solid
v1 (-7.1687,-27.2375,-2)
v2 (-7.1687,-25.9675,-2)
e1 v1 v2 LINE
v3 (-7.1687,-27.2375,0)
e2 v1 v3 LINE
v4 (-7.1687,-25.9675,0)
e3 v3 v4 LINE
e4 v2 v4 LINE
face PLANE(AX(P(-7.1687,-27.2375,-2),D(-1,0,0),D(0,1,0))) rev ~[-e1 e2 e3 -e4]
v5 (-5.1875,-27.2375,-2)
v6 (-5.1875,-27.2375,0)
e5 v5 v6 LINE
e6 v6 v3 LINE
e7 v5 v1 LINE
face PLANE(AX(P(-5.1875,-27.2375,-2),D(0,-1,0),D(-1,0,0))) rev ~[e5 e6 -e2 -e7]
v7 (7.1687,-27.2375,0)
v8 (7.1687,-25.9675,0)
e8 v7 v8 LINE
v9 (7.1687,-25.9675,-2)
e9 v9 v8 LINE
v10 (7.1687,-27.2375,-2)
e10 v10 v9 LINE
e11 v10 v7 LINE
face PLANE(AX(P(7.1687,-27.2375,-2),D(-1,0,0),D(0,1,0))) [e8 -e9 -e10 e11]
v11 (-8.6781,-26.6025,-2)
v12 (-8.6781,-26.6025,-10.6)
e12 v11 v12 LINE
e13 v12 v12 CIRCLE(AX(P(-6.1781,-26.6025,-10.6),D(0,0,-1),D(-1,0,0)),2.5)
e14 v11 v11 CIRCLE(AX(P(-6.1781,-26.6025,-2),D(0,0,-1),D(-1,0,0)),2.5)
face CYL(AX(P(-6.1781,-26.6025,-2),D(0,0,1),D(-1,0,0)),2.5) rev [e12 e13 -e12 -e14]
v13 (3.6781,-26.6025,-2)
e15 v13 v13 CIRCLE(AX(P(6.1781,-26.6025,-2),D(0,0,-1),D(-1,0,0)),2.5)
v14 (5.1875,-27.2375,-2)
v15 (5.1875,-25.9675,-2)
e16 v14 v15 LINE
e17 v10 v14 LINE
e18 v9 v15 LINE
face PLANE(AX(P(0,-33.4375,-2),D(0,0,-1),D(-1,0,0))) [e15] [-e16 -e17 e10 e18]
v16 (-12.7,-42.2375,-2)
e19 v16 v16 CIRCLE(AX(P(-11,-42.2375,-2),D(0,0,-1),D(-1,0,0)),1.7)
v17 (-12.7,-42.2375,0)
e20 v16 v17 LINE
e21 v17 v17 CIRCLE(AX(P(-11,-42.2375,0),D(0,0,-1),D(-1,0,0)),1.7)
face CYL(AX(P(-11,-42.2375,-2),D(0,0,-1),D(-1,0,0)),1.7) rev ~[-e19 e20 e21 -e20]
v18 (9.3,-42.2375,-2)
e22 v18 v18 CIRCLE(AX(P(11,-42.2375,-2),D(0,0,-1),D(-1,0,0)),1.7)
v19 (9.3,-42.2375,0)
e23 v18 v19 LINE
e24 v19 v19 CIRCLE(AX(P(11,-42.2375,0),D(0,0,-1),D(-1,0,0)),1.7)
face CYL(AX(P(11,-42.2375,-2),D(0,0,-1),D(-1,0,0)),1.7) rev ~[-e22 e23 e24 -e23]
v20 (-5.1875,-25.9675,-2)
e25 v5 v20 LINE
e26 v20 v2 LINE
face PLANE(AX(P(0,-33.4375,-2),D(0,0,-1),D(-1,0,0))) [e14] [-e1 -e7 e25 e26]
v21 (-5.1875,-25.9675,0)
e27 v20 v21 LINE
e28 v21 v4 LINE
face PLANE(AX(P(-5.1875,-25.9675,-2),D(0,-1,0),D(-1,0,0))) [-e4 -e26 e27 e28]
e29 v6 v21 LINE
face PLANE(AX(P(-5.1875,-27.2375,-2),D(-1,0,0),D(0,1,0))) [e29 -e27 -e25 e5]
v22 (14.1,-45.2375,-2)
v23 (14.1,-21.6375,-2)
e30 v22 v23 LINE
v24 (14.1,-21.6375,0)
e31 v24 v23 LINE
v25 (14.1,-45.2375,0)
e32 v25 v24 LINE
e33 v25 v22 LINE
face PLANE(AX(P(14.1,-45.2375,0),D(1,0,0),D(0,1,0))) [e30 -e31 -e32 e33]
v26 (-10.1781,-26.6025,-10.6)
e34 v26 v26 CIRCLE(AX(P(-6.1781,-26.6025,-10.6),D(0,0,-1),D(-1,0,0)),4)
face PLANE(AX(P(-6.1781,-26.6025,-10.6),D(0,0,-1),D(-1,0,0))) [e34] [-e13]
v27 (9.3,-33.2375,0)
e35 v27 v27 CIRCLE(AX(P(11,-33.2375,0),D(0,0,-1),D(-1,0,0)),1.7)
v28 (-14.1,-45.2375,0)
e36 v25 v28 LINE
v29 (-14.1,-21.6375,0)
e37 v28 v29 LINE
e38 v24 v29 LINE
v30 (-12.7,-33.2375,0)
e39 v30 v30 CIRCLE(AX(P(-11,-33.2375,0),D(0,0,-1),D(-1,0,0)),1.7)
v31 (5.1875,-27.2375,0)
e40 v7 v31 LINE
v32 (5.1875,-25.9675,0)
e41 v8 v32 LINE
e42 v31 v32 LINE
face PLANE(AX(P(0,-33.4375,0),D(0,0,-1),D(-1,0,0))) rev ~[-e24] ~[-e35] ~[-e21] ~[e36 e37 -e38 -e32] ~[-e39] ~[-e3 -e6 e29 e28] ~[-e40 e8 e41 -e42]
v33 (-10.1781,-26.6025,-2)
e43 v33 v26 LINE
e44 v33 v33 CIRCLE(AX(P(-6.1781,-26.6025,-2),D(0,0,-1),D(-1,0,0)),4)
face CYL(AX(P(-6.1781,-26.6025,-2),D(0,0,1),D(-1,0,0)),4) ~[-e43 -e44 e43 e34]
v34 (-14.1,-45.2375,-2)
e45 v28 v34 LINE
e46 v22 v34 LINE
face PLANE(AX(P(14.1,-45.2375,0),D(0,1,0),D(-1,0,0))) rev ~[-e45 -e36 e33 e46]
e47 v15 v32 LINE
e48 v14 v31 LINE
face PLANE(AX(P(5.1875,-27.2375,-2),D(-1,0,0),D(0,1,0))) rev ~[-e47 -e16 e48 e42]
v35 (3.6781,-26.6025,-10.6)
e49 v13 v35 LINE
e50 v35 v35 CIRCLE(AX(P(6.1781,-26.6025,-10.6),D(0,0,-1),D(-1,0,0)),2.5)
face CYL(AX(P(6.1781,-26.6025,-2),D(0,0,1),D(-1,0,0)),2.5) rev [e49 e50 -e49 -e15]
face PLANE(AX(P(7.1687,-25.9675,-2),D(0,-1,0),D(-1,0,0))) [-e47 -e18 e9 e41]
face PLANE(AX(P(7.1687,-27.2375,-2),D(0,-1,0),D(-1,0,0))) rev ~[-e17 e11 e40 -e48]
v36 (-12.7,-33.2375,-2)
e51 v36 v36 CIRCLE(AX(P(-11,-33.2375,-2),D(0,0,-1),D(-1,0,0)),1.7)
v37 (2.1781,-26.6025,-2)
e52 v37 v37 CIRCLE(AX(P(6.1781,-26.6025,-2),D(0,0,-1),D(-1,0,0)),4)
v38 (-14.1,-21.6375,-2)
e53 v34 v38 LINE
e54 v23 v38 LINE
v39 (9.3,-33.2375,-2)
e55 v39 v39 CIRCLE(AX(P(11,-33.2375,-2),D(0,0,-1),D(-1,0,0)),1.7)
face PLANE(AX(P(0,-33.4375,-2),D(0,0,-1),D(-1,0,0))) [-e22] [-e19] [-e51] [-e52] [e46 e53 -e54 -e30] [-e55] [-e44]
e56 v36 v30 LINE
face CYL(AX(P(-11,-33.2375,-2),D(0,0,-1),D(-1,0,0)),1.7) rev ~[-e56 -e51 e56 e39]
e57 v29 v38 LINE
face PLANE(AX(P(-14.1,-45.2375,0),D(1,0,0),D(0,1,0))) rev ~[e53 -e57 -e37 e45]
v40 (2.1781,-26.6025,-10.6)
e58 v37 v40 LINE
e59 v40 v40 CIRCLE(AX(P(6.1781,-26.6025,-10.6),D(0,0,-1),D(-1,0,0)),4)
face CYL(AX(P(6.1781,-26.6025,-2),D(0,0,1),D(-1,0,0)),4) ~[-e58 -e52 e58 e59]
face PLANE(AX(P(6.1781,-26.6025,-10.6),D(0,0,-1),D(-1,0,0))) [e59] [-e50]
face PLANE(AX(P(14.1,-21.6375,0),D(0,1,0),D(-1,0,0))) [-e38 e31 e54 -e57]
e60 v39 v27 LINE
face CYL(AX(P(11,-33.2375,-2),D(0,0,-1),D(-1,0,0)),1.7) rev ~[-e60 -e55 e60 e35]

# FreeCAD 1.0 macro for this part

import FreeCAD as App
import Part
import Sketcher

V = App.Vector

doc = App.newDocument("Part")
body = doc.addObject("PartDesign::Body", "Body")

# Sketch on XY plane
sketch1 = doc.addObject("Sketcher::SketchObject", "Sketch")
body.addObject(sketch1)
sketch1.AttachmentSupport = (doc.XY_Plane, [""])
sketch1.MapMode = "FlatFace"
sketch1.addGeometry([
    Part.LineSegment(V(-14, -22, 0), V(-14, -45, 0)),
    Part.LineSegment(V(-14, -45, 0), V(14, -45, 0)),
    Part.LineSegment(V(14, -45, 0), V(14, -22, 0)),
    Part.LineSegment(V(14, -22, 0), V(-14, -22, 0)),
], False)
sketch1.addConstraint([
    Sketcher.Constraint("Coincident", 0, 2, 1, 1),
    Sketcher.Constraint("Coincident", 1, 2, 2, 1),
    Sketcher.Constraint("Coincident", 2, 2, 3, 1),
    Sketcher.Constraint("Coincident", 3, 2, 0, 1),
    Sketcher.Constraint("Vertical", 0),
    Sketcher.Constraint("Horizontal", 1),
    Sketcher.Constraint("Vertical", 2),
    Sketcher.Constraint("Horizontal", 3),
    Sketcher.Constraint("DistanceX", 1, 1, 1, 2, 28.2),
    Sketcher.Constraint("DistanceY", 0, 2, 0, 1, 23.6),
    Sketcher.Constraint("DistanceX", 0, 2, -1, 1, 14.1),
    Sketcher.Constraint("DistanceY", 0, 2, -1, 1, 45.2375),
])
pad1 = doc.addObject("PartDesign::Pad", "Pad")
body.addObject(pad1)
pad1.Profile = sketch1
pad1.Length = 2

# Sketch on XY plane
sketch2 = doc.addObject("Sketcher::SketchObject", "Sketch001")
body.addObject(sketch2)
sketch2.AttachmentSupport = (doc.XY_Plane, [""])
sketch2.MapMode = "FlatFace"
sketch2.AttachmentOffset = App.Placement(V(0, 0, 2), App.Rotation())
sketch2.addGeometry([
    Part.LineSegment(V(-7.2, -26, 0), V(-7.2, -27.2, 0)),  # 0
    Part.LineSegment(V(-7.2, -27.2, 0), V(-5.2, -27.2, 0)),  # 1
    Part.LineSegment(V(-5.2, -27.2, 0), V(-5.2, -26, 0)),  # 2
    Part.LineSegment(V(-5.2, -26, 0), V(-7.2, -26, 0)),  # 3
    Part.LineSegment(V(5.2, -26, 0), V(5.2, -27.2, 0)),  # 4
    Part.LineSegment(V(5.2, -27.2, 0), V(7.2, -27.2, 0)),  # 5
    Part.LineSegment(V(7.2, -27.2, 0), V(7.2, -26, 0)),  # 6
    Part.LineSegment(V(7.2, -26, 0), V(5.2, -26, 0)),  # 7
], False)
sketch2.addConstraint([
    Sketcher.Constraint("Coincident", 0, 2, 1, 1),
    Sketcher.Constraint("Coincident", 1, 2, 2, 1),
    Sketcher.Constraint("Coincident", 2, 2, 3, 1),
    Sketcher.Constraint("Coincident", 3, 2, 0, 1),
    Sketcher.Constraint("Coincident", 4, 2, 5, 1),
    Sketcher.Constraint("Coincident", 5, 2, 6, 1),
    Sketcher.Constraint("Coincident", 6, 2, 7, 1),
    Sketcher.Constraint("Coincident", 7, 2, 4, 1),
    Sketcher.Constraint("Vertical", 0),
    Sketcher.Constraint("Horizontal", 1),
    Sketcher.Constraint("Vertical", 2),
    Sketcher.Constraint("Horizontal", 3),
    Sketcher.Constraint("Vertical", 4),
    Sketcher.Constraint("Horizontal", 5),
    Sketcher.Constraint("Vertical", 6),
    Sketcher.Constraint("Horizontal", 7),
    Sketcher.Constraint("Symmetric", 1, 2, 4, 2, -2),
    Sketcher.Constraint("Symmetric", 3, 2, 6, 2, -2),
    Sketcher.Constraint("DistanceY", 0, 2, 0, 1, 1.27),
    Sketcher.Constraint("DistanceX", 1, 1, 1, 2, 1.9812),
    Sketcher.Constraint("DistanceX", 1, 2, 4, 2, 10.375),
    Sketcher.Constraint("DistanceY", 0, 2, -1, 1, 27.2375),
])
pocket1 = doc.addObject("PartDesign::Pocket", "Pocket")
body.addObject(pocket1)
pocket1.Profile = sketch2
pocket1.Length = 2

# Sketch on XY plane
sketch3 = doc.addObject("Sketcher::SketchObject", "Sketch002")
body.addObject(sketch3)
sketch3.AttachmentSupport = (doc.XY_Plane, [""])
sketch3.MapMode = "FlatFace"
sketch3.AttachmentOffset = App.Placement(V(0, 0, 2), App.Rotation())
sketch3.addGeometry([
    Part.Circle(V(-6.2, -26.6, 0), V(0, 0, 1), 4),
    Part.Circle(V(-6.2, -26.6, 0), V(0, 0, 1), 2.5),
    Part.Circle(V(6.2, -26.6, 0), V(0, 0, 1), 4),
    Part.Circle(V(6.2, -26.6, 0), V(0, 0, 1), 2.5),
], False)
sketch3.addConstraint([
    Sketcher.Constraint("Coincident", 1, 3, 0, 3),
    Sketcher.Constraint("Coincident", 3, 3, 2, 3),
    Sketcher.Constraint("Equal", 0, 2),
    Sketcher.Constraint("Equal", 1, 3),
    Sketcher.Constraint("Symmetric", 0, 3, 2, 3, -2),
    Sketcher.Constraint("Diameter", 0, 8.0),
    Sketcher.Constraint("Diameter", 1, 5.0),
    Sketcher.Constraint("DistanceX", 0, 3, -1, 1, 6.1781),
    Sketcher.Constraint("DistanceY", 0, 3, -1, 1, 26.6025),
])
pad2 = doc.addObject("PartDesign::Pad", "Pad001")
body.addObject(pad2)
pad2.Profile = sketch3
pad2.Length = 8.6

# Sketch on XY plane
sketch4 = doc.addObject("Sketcher::SketchObject", "Sketch003")
body.addObject(sketch4)
sketch4.AttachmentSupport = (doc.XY_Plane, [""])
sketch4.MapMode = "FlatFace"
sketch4.AttachmentOffset = App.Placement(V(0, 0, 2), App.Rotation())
sketch4.addGeometry([
    Part.Circle(V(-11, -42.2, 0), V(0, 0, 1), 1.7),
    Part.Circle(V(11, -42.2, 0), V(0, 0, 1), 1.7),
    Part.Circle(V(-11, -33.2, 0), V(0, 0, 1), 1.7),
    Part.Circle(V(11, -33.2, 0), V(0, 0, 1), 1.7),
], False)
sketch4.addConstraint([
    Sketcher.Constraint("Equal", 0, 1),
    Sketcher.Constraint("Equal", 1, 2),
    Sketcher.Constraint("Equal", 2, 3),
    Sketcher.Constraint("Symmetric", 0, 3, 1, 3, -2),
    Sketcher.Constraint("Symmetric", 2, 3, 3, 3, -2),
    Sketcher.Constraint("Vertical", 0, 3, 2, 3),
    Sketcher.Constraint("Diameter", 0, 3.4),
    Sketcher.Constraint("DistanceX", 0, 3, -1, 1, 11.0),
    Sketcher.Constraint("DistanceY", 0, 3, 2, 3, 9.0),
    Sketcher.Constraint("DistanceY", 0, 3, -1, 1, 42.2375),
])
pocket2 = doc.addObject("PartDesign::Pocket", "Pocket001")
body.addObject(pocket2)
pocket2.Profile = sketch4
pocket2.Length = 2
body2 = doc.addObject("PartDesign::Body", "Body001")
doc.recompute()

body.Placement = App.Placement(V(0, 0, 0), App.Rotation(V(0, 1, 0), 180))
boolean = doc.addObject("PartDesign::Boolean", "Boolean")
body2.addObject(boolean)
boolean.Type = "Fuse"
boolean.addObjects([body])

doc.recompute()
